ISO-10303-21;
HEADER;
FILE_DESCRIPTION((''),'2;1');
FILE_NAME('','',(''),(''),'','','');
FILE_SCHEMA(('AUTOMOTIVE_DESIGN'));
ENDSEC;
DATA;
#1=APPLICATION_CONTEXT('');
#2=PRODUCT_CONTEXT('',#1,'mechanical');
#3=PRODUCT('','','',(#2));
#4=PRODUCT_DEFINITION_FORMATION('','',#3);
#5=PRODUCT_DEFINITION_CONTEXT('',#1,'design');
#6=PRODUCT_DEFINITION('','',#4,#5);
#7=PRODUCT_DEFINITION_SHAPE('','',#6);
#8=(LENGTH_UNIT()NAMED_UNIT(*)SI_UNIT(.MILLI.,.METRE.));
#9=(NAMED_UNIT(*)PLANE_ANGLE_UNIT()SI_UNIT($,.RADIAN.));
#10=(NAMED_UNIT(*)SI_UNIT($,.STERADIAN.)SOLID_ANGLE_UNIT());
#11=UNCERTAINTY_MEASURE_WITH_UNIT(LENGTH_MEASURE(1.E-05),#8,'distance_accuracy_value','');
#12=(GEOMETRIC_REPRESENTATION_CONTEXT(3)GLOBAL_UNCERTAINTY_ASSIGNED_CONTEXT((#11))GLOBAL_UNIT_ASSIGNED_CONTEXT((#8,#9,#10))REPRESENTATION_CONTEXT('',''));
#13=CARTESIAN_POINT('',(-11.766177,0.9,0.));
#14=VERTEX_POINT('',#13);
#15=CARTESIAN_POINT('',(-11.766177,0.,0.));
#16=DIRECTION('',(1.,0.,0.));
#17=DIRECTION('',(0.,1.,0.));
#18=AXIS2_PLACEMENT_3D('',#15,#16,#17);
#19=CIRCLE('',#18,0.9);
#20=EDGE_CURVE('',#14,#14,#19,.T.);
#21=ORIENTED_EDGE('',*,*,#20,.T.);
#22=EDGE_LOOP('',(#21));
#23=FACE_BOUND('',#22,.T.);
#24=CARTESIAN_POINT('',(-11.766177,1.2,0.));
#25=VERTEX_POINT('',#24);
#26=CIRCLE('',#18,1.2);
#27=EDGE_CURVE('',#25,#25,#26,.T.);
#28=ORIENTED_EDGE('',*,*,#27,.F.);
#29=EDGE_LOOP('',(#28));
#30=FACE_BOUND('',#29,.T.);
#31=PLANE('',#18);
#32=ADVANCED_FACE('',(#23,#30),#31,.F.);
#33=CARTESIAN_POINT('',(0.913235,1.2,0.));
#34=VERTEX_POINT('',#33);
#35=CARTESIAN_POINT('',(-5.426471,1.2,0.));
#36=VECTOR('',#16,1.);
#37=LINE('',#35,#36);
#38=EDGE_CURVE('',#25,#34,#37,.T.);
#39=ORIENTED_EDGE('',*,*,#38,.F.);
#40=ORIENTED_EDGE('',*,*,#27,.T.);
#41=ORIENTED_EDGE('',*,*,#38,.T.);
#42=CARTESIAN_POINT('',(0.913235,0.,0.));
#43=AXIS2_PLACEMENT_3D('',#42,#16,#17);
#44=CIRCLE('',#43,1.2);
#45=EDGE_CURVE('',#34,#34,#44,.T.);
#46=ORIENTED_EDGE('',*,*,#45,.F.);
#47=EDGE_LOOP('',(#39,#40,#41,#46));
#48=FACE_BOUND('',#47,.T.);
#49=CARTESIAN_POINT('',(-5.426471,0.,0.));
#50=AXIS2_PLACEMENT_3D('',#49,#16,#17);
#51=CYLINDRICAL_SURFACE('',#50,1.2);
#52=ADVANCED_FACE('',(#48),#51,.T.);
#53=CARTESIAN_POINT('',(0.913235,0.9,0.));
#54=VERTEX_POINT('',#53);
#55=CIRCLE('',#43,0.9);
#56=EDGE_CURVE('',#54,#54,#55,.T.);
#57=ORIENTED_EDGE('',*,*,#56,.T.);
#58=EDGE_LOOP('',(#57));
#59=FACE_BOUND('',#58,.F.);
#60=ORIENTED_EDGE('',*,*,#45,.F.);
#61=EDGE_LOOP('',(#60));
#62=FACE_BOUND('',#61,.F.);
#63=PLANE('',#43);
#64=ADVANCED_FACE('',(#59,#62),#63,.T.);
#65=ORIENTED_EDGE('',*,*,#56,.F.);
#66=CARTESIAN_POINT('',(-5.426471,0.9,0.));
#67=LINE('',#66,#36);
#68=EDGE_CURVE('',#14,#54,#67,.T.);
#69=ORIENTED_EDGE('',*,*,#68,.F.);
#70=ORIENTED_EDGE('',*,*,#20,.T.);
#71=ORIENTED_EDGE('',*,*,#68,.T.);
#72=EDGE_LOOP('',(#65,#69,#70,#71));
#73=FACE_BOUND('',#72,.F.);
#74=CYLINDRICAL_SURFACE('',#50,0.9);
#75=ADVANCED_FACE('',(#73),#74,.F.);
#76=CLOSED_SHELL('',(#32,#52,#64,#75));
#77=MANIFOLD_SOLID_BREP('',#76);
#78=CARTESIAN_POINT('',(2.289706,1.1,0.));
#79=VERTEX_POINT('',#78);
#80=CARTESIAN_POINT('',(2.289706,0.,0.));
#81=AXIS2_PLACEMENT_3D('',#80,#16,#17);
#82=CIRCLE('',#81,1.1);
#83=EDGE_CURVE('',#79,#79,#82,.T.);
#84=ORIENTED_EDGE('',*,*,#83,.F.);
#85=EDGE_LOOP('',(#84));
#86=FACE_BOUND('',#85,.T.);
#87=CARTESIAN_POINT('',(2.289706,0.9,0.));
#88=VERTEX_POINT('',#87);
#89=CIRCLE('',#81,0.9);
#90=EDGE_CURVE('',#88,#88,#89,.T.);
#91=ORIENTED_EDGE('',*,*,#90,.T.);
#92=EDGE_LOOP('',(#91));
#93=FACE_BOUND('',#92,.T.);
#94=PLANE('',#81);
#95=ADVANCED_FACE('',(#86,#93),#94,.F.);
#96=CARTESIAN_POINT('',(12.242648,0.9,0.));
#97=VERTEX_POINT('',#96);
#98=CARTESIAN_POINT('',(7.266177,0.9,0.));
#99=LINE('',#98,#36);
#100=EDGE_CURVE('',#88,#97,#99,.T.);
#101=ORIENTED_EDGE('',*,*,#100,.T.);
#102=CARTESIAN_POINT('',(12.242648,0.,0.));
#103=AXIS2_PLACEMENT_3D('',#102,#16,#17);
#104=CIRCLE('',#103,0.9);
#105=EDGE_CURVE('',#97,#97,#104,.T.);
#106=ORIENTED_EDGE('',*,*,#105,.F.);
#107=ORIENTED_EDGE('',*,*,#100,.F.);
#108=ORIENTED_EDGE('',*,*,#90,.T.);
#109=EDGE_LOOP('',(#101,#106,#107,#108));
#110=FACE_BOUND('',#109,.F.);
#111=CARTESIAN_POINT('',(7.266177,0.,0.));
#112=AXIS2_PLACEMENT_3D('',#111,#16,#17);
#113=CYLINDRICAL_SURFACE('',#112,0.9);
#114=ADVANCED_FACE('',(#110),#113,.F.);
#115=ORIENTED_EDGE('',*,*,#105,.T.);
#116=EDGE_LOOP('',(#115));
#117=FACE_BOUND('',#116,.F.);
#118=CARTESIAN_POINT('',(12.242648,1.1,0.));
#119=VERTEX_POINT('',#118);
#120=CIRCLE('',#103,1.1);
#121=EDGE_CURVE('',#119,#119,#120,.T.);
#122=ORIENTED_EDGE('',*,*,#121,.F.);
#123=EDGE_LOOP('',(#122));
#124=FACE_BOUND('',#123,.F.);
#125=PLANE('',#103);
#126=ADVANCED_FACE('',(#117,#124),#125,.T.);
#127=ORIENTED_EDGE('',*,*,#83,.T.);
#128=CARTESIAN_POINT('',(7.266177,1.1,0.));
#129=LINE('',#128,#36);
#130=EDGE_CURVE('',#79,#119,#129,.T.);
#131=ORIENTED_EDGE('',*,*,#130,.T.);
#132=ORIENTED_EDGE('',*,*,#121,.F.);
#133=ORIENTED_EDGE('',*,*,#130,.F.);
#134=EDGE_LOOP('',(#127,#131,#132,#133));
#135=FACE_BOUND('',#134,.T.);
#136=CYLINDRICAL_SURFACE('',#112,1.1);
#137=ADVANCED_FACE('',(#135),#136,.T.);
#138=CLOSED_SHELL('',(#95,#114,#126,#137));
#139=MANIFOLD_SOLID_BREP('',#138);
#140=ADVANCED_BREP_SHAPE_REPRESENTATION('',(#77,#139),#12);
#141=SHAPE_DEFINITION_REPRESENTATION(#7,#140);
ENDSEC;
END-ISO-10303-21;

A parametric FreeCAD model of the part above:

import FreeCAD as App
import Part
import Sketcher
from FreeCAD import Vector


def add_polygon(sketch, points):
    """Adds a closed chain of lines whose ends are joined by coincident constraints."""
    first, n = sketch.GeometryCount, len(points)
    for a, b in zip(points, points[1:] + points[:1]):
        sketch.addGeometry(Part.LineSegment(App.Vector(*a, 0), App.Vector(*b, 0)), False)
    for i in range(n):
        sketch.addConstraint(Sketcher.Constraint("Coincident", first + i, 2, first + (i + 1) % n, 1))

doc = App.newDocument("Part")
body = doc.addObject("PartDesign::Body", "Body")
body.AllowCompound = True

# Sketch on XY plane
sketch1 = body.newObject("Sketcher::SketchObject", "Sketch")
sketch1.AttachmentSupport = (doc.getObject("XY_Plane"), [""])
sketch1.MapMode = "FlatFace"
add_polygon(sketch1, [(-11.77, 1.2), (-11.77, 0.9), (0.91, 0.9), (0.91, 1.2)])  # lines 0-3
add_polygon(sketch1, [(2.29, 1.1), (2.29, 0.9), (12.24, 0.9), (12.24, 1.1)])  # lines 4-7
sketch1.addConstraint(Sketcher.Constraint("Vertical", 0))
sketch1.addConstraint(Sketcher.Constraint("Horizontal", 1))
sketch1.addConstraint(Sketcher.Constraint("Vertical", 2))
sketch1.addConstraint(Sketcher.Constraint("Horizontal", 3))
sketch1.addConstraint(Sketcher.Constraint("Vertical", 4))
sketch1.addConstraint(Sketcher.Constraint("Horizontal", 5))
sketch1.addConstraint(Sketcher.Constraint("Vertical", 6))
sketch1.addConstraint(Sketcher.Constraint("Horizontal", 7))
sketch1.addConstraint(Sketcher.Constraint("Horizontal", 1, 2, 4, 2))
sketch1.addConstraint(Sketcher.Constraint("DistanceY", 0, 2, 0, 1, 0.3))
sketch1.addConstraint(Sketcher.Constraint("DistanceY", 4, 2, 4, 1, 0.2))
sketch1.addConstraint(Sketcher.Constraint("DistanceY", -1, 1, 0, 2, 0.9))
sketch1.addConstraint(Sketcher.Constraint("DistanceX", 1, 1, 1, 2, 12.679413))
sketch1.addConstraint(Sketcher.Constraint("DistanceX", 5, 1, 5, 2, 9.952943))
sketch1.addConstraint(Sketcher.Constraint("DistanceX", -1, 1, 5, 2, 12.242648))
sketch1.addConstraint(Sketcher.Constraint("DistanceX", 1, 2, 4, 2, 1.37647))
revolution = body.newObject("PartDesign::Revolution", "Revolution")
revolution.Profile = sketch1
revolution.ReferenceAxis = (sketch1, ["H_Axis"])
revolution.Angle = 360

doc.recompute()
